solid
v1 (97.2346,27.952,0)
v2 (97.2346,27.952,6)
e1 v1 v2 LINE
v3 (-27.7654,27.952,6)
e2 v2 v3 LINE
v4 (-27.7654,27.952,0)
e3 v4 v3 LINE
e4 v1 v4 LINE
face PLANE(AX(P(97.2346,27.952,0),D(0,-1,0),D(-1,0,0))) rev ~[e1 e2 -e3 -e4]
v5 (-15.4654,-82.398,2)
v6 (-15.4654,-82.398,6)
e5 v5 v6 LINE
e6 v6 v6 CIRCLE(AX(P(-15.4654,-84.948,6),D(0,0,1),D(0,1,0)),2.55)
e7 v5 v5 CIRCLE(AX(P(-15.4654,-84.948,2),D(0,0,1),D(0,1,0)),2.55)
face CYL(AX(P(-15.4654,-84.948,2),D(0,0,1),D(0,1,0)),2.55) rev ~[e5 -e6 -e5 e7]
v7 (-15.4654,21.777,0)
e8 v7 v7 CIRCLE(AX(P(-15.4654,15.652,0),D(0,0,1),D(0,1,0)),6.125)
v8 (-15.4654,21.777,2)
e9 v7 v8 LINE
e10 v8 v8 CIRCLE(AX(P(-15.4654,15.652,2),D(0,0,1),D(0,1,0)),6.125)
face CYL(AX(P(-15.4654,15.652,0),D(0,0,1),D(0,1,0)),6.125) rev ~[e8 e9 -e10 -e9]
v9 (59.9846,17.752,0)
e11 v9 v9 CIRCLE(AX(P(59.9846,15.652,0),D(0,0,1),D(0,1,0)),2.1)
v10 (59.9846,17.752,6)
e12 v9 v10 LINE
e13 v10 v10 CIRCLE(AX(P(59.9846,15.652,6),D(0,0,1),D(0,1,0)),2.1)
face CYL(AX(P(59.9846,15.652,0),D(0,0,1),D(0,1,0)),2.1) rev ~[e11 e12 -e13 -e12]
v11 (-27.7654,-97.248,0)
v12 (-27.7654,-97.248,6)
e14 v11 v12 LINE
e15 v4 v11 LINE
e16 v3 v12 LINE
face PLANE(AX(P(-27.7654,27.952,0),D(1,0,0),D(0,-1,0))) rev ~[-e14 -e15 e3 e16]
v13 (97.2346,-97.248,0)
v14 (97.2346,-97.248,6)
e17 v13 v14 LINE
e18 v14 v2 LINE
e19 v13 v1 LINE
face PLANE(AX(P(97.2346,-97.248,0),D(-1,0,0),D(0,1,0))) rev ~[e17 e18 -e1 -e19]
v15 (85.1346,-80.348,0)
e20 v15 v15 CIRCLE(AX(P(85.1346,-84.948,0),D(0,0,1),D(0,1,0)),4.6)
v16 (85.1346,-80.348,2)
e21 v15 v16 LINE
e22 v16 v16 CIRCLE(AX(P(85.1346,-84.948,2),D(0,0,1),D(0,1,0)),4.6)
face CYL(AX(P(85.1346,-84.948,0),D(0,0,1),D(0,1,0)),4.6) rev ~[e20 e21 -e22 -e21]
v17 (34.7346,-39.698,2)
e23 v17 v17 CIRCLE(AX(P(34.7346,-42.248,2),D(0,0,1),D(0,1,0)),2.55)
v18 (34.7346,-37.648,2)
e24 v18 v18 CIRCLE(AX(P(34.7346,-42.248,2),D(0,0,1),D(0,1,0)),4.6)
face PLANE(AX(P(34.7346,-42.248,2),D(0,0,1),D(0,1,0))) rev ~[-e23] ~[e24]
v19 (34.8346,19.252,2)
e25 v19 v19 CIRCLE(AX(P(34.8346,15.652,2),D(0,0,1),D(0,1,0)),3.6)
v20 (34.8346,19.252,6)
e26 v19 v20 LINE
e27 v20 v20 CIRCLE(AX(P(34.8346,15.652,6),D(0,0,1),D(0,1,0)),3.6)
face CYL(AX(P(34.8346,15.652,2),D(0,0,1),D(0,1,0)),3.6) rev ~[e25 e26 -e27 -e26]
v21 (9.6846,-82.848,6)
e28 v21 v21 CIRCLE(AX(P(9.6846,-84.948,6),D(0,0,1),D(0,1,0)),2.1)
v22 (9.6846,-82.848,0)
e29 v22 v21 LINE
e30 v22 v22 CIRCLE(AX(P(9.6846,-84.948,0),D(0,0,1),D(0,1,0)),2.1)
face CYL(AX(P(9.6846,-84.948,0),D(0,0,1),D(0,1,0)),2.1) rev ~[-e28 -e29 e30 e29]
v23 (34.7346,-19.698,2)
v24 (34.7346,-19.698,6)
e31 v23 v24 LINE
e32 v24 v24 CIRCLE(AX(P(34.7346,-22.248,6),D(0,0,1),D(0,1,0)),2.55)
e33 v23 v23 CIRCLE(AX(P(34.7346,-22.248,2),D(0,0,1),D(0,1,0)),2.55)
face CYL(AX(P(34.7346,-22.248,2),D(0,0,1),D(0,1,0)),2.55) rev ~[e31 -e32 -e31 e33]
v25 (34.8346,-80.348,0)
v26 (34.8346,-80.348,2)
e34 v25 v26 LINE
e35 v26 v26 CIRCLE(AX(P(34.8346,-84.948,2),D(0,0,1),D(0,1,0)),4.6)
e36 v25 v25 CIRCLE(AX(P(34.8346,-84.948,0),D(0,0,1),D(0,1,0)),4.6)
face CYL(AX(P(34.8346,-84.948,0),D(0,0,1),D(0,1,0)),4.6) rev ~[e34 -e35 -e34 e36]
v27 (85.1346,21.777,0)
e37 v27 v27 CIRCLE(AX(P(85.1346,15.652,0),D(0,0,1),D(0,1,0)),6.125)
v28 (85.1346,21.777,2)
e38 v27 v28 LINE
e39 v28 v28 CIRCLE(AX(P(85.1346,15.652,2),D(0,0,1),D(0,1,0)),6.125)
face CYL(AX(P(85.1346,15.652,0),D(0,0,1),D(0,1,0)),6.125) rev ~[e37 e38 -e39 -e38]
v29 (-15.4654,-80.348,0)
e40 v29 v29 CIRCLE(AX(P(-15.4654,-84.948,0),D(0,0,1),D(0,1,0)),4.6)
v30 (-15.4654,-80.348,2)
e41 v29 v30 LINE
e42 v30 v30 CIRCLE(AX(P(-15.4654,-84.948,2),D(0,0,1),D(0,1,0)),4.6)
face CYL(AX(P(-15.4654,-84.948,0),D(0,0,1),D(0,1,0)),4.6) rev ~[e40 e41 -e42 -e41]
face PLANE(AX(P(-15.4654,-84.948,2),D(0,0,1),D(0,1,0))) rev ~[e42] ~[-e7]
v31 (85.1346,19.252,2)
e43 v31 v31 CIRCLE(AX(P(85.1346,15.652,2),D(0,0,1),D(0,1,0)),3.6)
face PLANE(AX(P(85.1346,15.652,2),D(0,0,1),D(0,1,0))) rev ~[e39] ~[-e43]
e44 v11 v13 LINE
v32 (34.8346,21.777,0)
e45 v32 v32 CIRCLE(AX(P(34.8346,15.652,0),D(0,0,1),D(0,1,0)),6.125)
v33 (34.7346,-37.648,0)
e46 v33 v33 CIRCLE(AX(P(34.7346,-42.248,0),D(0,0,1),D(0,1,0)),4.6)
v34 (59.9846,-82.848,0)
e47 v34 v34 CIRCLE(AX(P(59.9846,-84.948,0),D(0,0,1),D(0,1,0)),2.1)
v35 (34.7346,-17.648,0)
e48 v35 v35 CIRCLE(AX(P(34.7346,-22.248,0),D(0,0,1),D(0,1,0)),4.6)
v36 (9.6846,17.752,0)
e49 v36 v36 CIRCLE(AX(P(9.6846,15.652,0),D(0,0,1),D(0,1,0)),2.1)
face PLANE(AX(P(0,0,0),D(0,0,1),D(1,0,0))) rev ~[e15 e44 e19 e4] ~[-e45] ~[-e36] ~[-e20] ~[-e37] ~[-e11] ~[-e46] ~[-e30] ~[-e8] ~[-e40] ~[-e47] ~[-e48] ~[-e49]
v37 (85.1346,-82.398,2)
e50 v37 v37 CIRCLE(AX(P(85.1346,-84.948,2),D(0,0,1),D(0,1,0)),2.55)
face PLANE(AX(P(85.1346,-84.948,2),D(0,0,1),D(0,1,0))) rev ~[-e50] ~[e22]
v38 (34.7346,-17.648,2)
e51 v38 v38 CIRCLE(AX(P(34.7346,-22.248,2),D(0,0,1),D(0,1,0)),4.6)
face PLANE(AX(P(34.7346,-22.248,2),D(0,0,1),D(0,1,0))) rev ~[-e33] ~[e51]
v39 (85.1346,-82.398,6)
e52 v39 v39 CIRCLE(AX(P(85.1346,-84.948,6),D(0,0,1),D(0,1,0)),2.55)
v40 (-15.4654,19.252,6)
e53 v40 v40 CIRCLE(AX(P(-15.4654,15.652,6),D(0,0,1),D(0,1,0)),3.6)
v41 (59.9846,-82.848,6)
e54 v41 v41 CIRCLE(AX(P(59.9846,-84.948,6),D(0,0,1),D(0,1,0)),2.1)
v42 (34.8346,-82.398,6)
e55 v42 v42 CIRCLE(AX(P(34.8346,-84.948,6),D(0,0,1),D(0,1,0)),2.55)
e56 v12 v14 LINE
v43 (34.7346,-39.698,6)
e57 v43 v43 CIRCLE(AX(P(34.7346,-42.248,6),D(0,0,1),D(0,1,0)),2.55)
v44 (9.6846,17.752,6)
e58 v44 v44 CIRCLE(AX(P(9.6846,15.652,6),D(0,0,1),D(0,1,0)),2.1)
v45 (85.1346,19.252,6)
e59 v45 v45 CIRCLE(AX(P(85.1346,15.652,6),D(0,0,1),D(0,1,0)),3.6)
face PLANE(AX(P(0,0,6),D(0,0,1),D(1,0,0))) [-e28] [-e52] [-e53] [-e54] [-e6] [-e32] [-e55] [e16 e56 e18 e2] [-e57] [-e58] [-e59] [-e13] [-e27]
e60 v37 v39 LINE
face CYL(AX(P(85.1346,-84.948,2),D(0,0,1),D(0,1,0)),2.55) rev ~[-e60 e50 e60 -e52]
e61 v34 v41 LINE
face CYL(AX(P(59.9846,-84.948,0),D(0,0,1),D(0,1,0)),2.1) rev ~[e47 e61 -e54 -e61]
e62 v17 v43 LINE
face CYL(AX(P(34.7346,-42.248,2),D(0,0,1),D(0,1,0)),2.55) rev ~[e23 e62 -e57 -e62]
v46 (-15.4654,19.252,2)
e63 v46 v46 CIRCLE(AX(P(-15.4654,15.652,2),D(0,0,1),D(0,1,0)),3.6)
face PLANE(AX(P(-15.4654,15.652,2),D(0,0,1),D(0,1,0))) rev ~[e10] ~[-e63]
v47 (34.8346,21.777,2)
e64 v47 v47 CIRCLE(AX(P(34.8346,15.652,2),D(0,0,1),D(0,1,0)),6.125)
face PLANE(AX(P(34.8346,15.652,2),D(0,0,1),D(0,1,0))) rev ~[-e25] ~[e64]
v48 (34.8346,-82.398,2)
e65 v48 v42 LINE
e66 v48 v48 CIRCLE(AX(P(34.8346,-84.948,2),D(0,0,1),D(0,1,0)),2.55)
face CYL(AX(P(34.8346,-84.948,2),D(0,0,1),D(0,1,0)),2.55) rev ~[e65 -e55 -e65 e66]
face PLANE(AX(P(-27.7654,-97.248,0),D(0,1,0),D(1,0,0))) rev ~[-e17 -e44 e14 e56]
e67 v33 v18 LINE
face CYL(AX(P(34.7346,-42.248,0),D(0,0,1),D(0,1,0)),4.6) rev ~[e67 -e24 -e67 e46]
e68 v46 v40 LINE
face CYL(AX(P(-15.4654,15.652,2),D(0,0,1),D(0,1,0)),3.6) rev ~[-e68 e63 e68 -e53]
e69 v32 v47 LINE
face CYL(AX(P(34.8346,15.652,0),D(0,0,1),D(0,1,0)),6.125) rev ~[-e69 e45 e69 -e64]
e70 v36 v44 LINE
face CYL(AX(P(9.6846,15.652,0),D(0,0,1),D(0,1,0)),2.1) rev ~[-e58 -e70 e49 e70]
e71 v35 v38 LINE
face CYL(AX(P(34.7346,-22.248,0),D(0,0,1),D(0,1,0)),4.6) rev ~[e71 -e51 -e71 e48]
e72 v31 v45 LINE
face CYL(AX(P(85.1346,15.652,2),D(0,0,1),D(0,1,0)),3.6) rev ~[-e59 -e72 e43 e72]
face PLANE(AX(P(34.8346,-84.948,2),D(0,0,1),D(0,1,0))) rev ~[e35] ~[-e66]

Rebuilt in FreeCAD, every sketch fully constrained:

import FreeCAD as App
import Part
import Sketcher
from FreeCAD import Vector
Q = App.Units.Quantity


def add_polygon(sketch, points):
    """Adds a closed chain of lines whose ends are joined by coincident constraints."""
    first, n = sketch.GeometryCount, len(points)
    for a, b in zip(points, points[1:] + points[:1]):
        sketch.addGeometry(Part.LineSegment(App.Vector(*a, 0), App.Vector(*b, 0)), False)
    for i in range(n):
        sketch.addConstraint(Sketcher.Constraint("Coincident", first + i, 2, first + (i + 1) % n, 1))

doc = App.newDocument("Part")
body = doc.addObject("PartDesign::Body", "Body")

# Sketch on XY plane
sketch1 = doc.addObject("Sketcher::SketchObject", "Sketch")
body.addObject(sketch1)
sketch1.AttachmentSupport = (doc.XY_Plane, [""])
sketch1.MapMode = "FlatFace"
add_polygon(sketch1, [(97, -97), (97, 28), (-28, 28), (-28, -97)])  # lines 0-3
sketch1.addConstraint([
    Sketcher.Constraint("Vertical", 0),
    Sketcher.Constraint("Horizontal", 1),
    Sketcher.Constraint("Vertical", 2),
    Sketcher.Constraint("Horizontal", 3),
    Sketcher.Constraint("DistanceX", 1, 2, 1, 1, Q("125 mm")),
    Sketcher.Constraint("DistanceY", 0, 1, 0, 2, Q("125.2 mm")),
    Sketcher.Constraint("DistanceY", -1, 1, 0, 2, Q("27.952 mm")),
    Sketcher.Constraint("DistanceX", -1, 1, 0, 2, Q("97.2346 mm")),
])
pad1 = doc.addObject("PartDesign::Pad", "Pad")
body.addObject(pad1)
pad1.Profile = sketch1
pad1.Length = 6

# Sketch on XY plane
sketch2 = doc.addObject("Sketcher::SketchObject", "Sketch001")
body.addObject(sketch2)
sketch2.AttachmentSupport = (doc.XY_Plane, [""])
sketch2.MapMode = "FlatFace"
sketch2.addGeometry([
    Part.Circle(Vector(85.1, -84.9, 0), Vector(0, 0, 1), 2.5),
    Part.Circle(Vector(34.8, -84.9, 0), Vector(0, 0, 1), 2.5),
    Part.Circle(Vector(-15.5, -84.9, 0), Vector(0, 0, 1), 2.5),
], False)
sketch2.addConstraint([
    Sketcher.Constraint("Equal", 0, 1),
    Sketcher.Constraint("Equal", 1, 2),
    Sketcher.Constraint("Horizontal", 0, 3, 1, 3),
    Sketcher.Constraint("Horizontal", 1, 3, 2, 3),
    Sketcher.Constraint("Diameter", 0, Q("5.1 mm")),
    Sketcher.Constraint("DistanceX", 1, 3, 0, 3, Q("50.3 mm")),
    Sketcher.Constraint("DistanceX", 2, 3, 1, 3, Q("50.3 mm")),
    Sketcher.Constraint("DistanceY", 0, 3, -1, 1, Q("84.948 mm")),
    Sketcher.Constraint("DistanceX", -1, 1, 0, 3, Q("85.1346 mm")),
])
doc.recompute()
hole = doc.addObject("PartDesign::Hole", "Hole")
body.addObject(hole)
hole.Profile = sketch2
hole.ThreadType = "None"
hole.Diameter = 5.1
hole.DepthType = "ThroughAll"
hole.HoleCutType = "Counterbore"
hole.HoleCutDiameter = 9.2
hole.HoleCutDepth = 2
hole.Reversed = True

# Sketch on XY plane
sketch3 = doc.addObject("Sketcher::SketchObject", "Sketch002")
body.addObject(sketch3)
sketch3.AttachmentSupport = (doc.XY_Plane, [""])
sketch3.MapMode = "FlatFace"
sketch3.addGeometry([
    Part.Circle(Vector(85.1, 15.7, 0), Vector(0, 0, 1), 3.6),
    Part.Circle(Vector(34.8, 15.7, 0), Vector(0, 0, 1), 3.6),
    Part.Circle(Vector(-15.5, 15.7, 0), Vector(0, 0, 1), 3.6),
], False)
sketch3.addConstraint([
    Sketcher.Constraint("Equal", 0, 1),
    Sketcher.Constraint("Equal", 1, 2),
    Sketcher.Constraint("Horizontal", 0, 3, 1, 3),
    Sketcher.Constraint("Horizontal", 1, 3, 2, 3),
    Sketcher.Constraint("Diameter", 0, Q("7.2 mm")),
    Sketcher.Constraint("DistanceX", 1, 3, 0, 3, Q("50.3 mm")),
    Sketcher.Constraint("DistanceX", 2, 3, 1, 3, Q("50.3 mm")),
    Sketcher.Constraint("DistanceY", -1, 1, 0, 3, Q("15.652 mm")),
    Sketcher.Constraint("DistanceX", -1, 1, 0, 3, Q("85.1346 mm")),
])
doc.recompute()
hole2 = doc.addObject("PartDesign::Hole", "Hole001")
body.addObject(hole2)
hole2.Profile = sketch3
hole2.ThreadType = "None"
hole2.Diameter = 7.2
hole2.DepthType = "ThroughAll"
hole2.HoleCutType = "Counterbore"
hole2.HoleCutDiameter = 12.25
hole2.HoleCutDepth = 2
hole2.Reversed = True

# Sketch on XY plane
sketch4 = doc.addObject("Sketcher::SketchObject", "Sketch003")
body.addObject(sketch4)
sketch4.AttachmentSupport = (doc.XY_Plane, [""])
sketch4.MapMode = "FlatFace"
sketch4.addGeometry([
    Part.Circle(Vector(34.7, -22.2, 0), Vector(0, 0, 1), 2.5),
    Part.Circle(Vector(34.7, -42.2, 0), Vector(0, 0, 1), 2.5),
], False)
sketch4.addConstraint([
    Sketcher.Constraint("Equal", 0, 1),
    Sketcher.Constraint("Vertical", 0, 3, 1, 3),
    Sketcher.Constraint("Diameter", 0, Q("5.1 mm")),
    Sketcher.Constraint("DistanceY", 1, 3, 0, 3, Q("20 mm")),
    Sketcher.Constraint("DistanceY", 0, 3, -1, 1, Q("22.248 mm")),
    Sketcher.Constraint("DistanceX", -1, 1, 0, 3, Q("34.7346 mm")),
])
doc.recompute()
hole3 = doc.addObject("PartDesign::Hole", "Hole002")
body.addObject(hole3)
hole3.Profile = sketch4
hole3.ThreadType = "None"
hole3.Diameter = 5.1
hole3.DepthType = "ThroughAll"
hole3.HoleCutType = "Counterbore"
hole3.HoleCutDiameter = 9.2
hole3.HoleCutDepth = 2
hole3.Reversed = True

# Sketch on XY plane
sketch5 = doc.addObject("Sketcher::SketchObject", "Sketch004")
body.addObject(sketch5)
sketch5.AttachmentSupport = (doc.XY_Plane, [""])
sketch5.MapMode = "FlatFace"
sketch5.addGeometry([
    Part.Circle(Vector(60, 15.7, 0), Vector(0, 0, 1), 2.1),
    Part.Circle(Vector(9.7, 15.7, 0), Vector(0, 0, 1), 2.1),
    Part.Circle(Vector(60, -84.9, 0), Vector(0, 0, 1), 2.1),
    Part.Circle(Vector(9.7, -84.9, 0), Vector(0, 0, 1), 2.1),
], False)
sketch5.addConstraint([
    Sketcher.Constraint("Equal", 0, 1),
    Sketcher.Constraint("Equal", 1, 2),
    Sketcher.Constraint("Equal", 2, 3),
    Sketcher.Constraint("Horizontal", 0, 3, 1, 3),
    Sketcher.Constraint("Horizontal", 2, 3, 3, 3),
    Sketcher.Constraint("Vertical", 0, 3, 2, 3),
    Sketcher.Constraint("Vertical", 1, 3, 3, 3),
    Sketcher.Constraint("Diameter", 0, Q("4.2 mm")),
    Sketcher.Constraint("DistanceX", 1, 3, 0, 3, Q("50.3 mm")),
    Sketcher.Constraint("DistanceY", 2, 3, 0, 3, Q("100.6 mm")),
    Sketcher.Constraint("DistanceY", -1, 1, 0, 3, Q("15.652 mm")),
    Sketcher.Constraint("DistanceX", -1, 1, 0, 3, Q("59.9846 mm")),
])
doc.recompute()
hole4 = doc.addObject("PartDesign::Hole", "Hole003")
body.addObject(hole4)
hole4.Profile = sketch5
hole4.ThreadType = "None"
hole4.Diameter = 4.2
hole4.DepthType = "ThroughAll"
hole4.Reversed = True

doc.recompute()
